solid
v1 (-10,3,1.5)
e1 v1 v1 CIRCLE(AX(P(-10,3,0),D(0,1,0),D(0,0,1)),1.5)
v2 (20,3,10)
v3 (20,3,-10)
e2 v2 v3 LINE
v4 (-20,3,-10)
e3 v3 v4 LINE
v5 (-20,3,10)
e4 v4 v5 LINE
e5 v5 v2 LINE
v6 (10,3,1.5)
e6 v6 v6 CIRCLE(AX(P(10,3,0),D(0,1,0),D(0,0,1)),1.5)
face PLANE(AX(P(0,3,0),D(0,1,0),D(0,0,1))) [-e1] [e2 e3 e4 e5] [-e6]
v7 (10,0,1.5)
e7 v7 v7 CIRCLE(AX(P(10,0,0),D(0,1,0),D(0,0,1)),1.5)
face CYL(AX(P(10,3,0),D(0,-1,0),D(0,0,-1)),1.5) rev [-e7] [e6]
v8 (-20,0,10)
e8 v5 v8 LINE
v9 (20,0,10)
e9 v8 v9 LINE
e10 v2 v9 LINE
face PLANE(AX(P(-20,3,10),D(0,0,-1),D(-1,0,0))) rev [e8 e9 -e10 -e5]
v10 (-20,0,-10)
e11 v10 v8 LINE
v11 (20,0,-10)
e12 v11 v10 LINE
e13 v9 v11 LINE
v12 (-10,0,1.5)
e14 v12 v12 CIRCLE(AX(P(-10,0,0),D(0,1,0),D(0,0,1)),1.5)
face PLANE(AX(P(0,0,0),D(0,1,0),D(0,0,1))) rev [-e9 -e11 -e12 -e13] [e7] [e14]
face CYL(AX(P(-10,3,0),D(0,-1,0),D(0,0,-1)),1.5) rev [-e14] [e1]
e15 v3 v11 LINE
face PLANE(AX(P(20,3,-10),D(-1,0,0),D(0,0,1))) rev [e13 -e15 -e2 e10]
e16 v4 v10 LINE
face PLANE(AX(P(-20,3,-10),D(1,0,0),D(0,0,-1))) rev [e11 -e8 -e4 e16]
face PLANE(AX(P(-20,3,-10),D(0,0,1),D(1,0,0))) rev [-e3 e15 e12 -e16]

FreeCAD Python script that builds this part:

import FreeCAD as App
import Part
import Sketcher
Q = App.Units.Quantity


def add_polygon(sketch, points):
    """Adds a closed chain of lines whose ends are joined by coincident constraints."""
    first, n = sketch.GeometryCount, len(points)
    for a, b in zip(points, points[1:] + points[:1]):
        sketch.addGeometry(Part.LineSegment(App.Vector(*a, 0), App.Vector(*b, 0)), False)
    for i in range(n):
        sketch.addConstraint(Sketcher.Constraint("Coincident", first + i, 2, first + (i + 1) % n, 1))

doc = App.newDocument("Part")
body = doc.addObject("PartDesign::Body", "Body")

# Sketch on XZ plane
sketch1 = body.newObject("Sketcher::SketchObject", "Sketch")
sketch1.AttachmentSupport = (doc.getObject("XZ_Plane"), [""])
sketch1.MapMode = "FlatFace"
add_polygon(sketch1, [(-20, -10), (-20, 10), (20, 10), (20, -10)])  # lines 0-3
sketch1.addGeometry(Part.Circle(App.Vector(-10, 0, 0), App.Vector(0, 0, 1), 1.5), False)  # 4
sketch1.addGeometry(Part.Circle(App.Vector(10, 0, 0), App.Vector(0, 0, 1), 1.5), False)  # 5
sketch1.addConstraint(Sketcher.Constraint("Vertical", 0))
sketch1.addConstraint(Sketcher.Constraint("Horizontal", 1))
sketch1.addConstraint(Sketcher.Constraint("Vertical", 2))
sketch1.addConstraint(Sketcher.Constraint("Horizontal", 3))
sketch1.addConstraint(Sketcher.Constraint("Equal", 4, 5))
sketch1.addConstraint(Sketcher.Constraint("Symmetric", 4, 3, 5, 3, -1, 1))
sketch1.addConstraint(Sketcher.Constraint("Symmetric", 0, 2, 2, 2, -1, 1))
sketch1.addConstraint(Sketcher.Constraint("PointOnObject", 4, 3, -1))
sketch1.addConstraint(Sketcher.Constraint("Diameter", 4, Q("3 mm")))
sketch1.addConstraint(Sketcher.Constraint("DistanceX", 1, 1, 1, 2, Q("40 mm")))
sketch1.addConstraint(Sketcher.Constraint("DistanceY", 0, 1, 0, 2, Q("20 mm")))
sketch1.addConstraint(Sketcher.Constraint("DistanceX", 4, 3, -1, 1, Q("10 mm")))
pad1 = body.newObject("PartDesign::Pad", "Pad")
pad1.Profile = sketch1
pad1.Length = 3
pad1.Reversed = True

doc.recompute()
